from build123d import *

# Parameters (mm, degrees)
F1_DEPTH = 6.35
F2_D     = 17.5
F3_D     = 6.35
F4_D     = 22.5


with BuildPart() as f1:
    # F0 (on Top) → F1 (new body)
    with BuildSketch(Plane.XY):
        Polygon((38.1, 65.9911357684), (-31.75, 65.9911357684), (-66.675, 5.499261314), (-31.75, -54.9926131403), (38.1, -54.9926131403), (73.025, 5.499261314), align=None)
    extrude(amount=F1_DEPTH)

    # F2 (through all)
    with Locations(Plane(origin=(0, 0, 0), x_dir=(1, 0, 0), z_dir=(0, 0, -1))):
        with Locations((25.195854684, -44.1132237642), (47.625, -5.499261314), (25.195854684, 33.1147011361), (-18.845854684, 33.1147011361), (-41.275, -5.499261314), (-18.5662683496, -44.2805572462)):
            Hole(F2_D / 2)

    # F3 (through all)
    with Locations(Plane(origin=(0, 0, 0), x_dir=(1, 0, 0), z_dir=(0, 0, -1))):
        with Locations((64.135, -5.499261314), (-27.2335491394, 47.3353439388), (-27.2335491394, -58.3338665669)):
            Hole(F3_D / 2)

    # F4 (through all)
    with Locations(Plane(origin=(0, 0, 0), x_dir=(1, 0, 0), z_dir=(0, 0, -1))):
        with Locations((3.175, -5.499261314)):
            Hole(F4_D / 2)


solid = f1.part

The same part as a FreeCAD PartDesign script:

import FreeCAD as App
import Part
import Sketcher

V = App.Vector
Q = App.Units.Quantity


def add_polygon(sketch, points):
    """Adds a closed chain of lines whose ends are joined by coincident constraints."""
    first, n = sketch.GeometryCount, len(points)
    for a, b in zip(points, points[1:] + points[:1]):
        sketch.addGeometry(Part.LineSegment(App.Vector(*a, 0), App.Vector(*b, 0)), False)
    for i in range(n):
        sketch.addConstraint(Sketcher.Constraint("Coincident", first + i, 2, first + (i + 1) % n, 1))

doc = App.newDocument("Part")
body = doc.addObject("PartDesign::Body", "Body")

sketch1 = body.newObject("Sketcher::SketchObject", "Sketch")
sketch1.AttachmentSupport = (doc.getObject("XY_Plane"), [""])
sketch1.MapMode = "FlatFace"
add_polygon(sketch1, [(38, 66), (-32, 66), (-67, 5), (-32, -55), (38, -55), (73, 5)])
sketch1.addConstraint([
    Sketcher.Constraint("Horizontal", 0),
    Sketcher.Constraint("Horizontal", 3),
    Sketcher.Constraint("Parallel", 1, 4),
    Sketcher.Constraint("Parallel", 2, 5),
    Sketcher.Constraint("Horizontal", 1, 2, 4, 2),
    Sketcher.Constraint("Vertical", 0, 2, 2, 2),
    Sketcher.Constraint("Vertical", 3, 2, 5, 2),
    Sketcher.Constraint("Angle", 1, Q("-120 deg")),
    Sketcher.Constraint("DistanceX", 0, 2, 0, 1, 69.85),
    Sketcher.Constraint("DistanceX", -1, 1, 3, 2, 38.1),
    Sketcher.Constraint("DistanceX", 1, 2, 4, 2, 139.7),
    Sketcher.Constraint("DistanceY", -1, 1, 1, 2, 5.499261),
])
pad1 = body.newObject("PartDesign::Pad", "Pad")
pad1.Profile = sketch1
pad1.Length = 6.35

sketch2 = body.newObject("Sketcher::SketchObject", "Sketch001")
sketch2.AttachmentSupport = (doc.getObject("XY_Plane"), [""])
sketch2.MapMode = "FlatFace"
sketch2.addGeometry([
    Part.Circle(V(25, 44, 0), V(0, 0, 1), 9),
    Part.Circle(V(48, 5, 0), V(0, 0, 1), 9),
    Part.Circle(V(25, -33, 0), V(0, 0, 1), 9),
    Part.Circle(V(-19, -33, 0), V(0, 0, 1), 9),
    Part.Circle(V(-41, 5, 0), V(0, 0, 1), 9),
    Part.Circle(V(-19, 44, 0), V(0, 0, 1), 9),
], False)
sketch2.addConstraint([
    Sketcher.Constraint("Equal", 0, 1),
    Sketcher.Constraint("Equal", 1, 2),
    Sketcher.Constraint("Equal", 2, 3),
    Sketcher.Constraint("Equal", 3, 4),
    Sketcher.Constraint("Equal", 4, 5),
    Sketcher.Constraint("Horizontal", 2, 3, 3, 3),
    Sketcher.Constraint("Horizontal", 1, 3, 4, 3),
    Sketcher.Constraint("Vertical", 0, 3, 2, 3),
    Sketcher.Constraint("Diameter", 0, 17.5),
    Sketcher.Constraint("DistanceX", 4, 3, 1, 3, 88.9),
    Sketcher.Constraint("DistanceX", -1, 1, 1, 3, 47.625),
    Sketcher.Constraint("DistanceY", 2, 3, -1, 1, 33.114701),
    Sketcher.Constraint("DistanceY", -1, 1, 1, 3, 5.499261),
    Sketcher.Constraint("DistanceX", 5, 3, -1, 1, 18.566268),
    Sketcher.Constraint("DistanceX", 3, 3, 2, 3, 44.041709),
    Sketcher.Constraint("DistanceY", 3, 3, 5, 3, 77.395258),
    Sketcher.Constraint("DistanceX", -1, 1, 0, 3, 25.195855),
    Sketcher.Constraint("DistanceY", -1, 1, 0, 3, 44.113224),
])
doc.recompute()
hole = body.newObject("PartDesign::Hole", "Hole")
hole.Profile = sketch2
hole.ThreadType = "None"
hole.Diameter = 17.5
hole.DepthType = "ThroughAll"
hole.Reversed = True

sketch3 = body.newObject("Sketcher::SketchObject", "Sketch002")
sketch3.AttachmentSupport = (doc.getObject("XY_Plane"), [""])
sketch3.MapMode = "FlatFace"
sketch3.addGeometry([
    Part.Circle(V(64.1, 5.5, 0), V(0, 0, 1), 3.2),
    Part.Circle(V(-27.2, -47.3, 0), V(0, 0, 1), 3.2),
    Part.Circle(V(-27.2, 58.3, 0), V(0, 0, 1), 3.2),
], False)
sketch3.addConstraint([
    Sketcher.Constraint("Equal", 0, 1),
    Sketcher.Constraint("Equal", 1, 2),
    Sketcher.Constraint("Vertical", 1, 3, 2, 3),
    Sketcher.Constraint("Diameter", 0, 6.35),
    Sketcher.Constraint("DistanceX", -1, 1, 0, 3, 64.135),
    Sketcher.Constraint("DistanceY", -1, 1, 0, 3, 5.499261),
    Sketcher.Constraint("DistanceX", 1, 3, -1, 1, 27.233549),
    Sketcher.Constraint("DistanceY", 1, 3, 2, 3, 105.669211),
    Sketcher.Constraint("DistanceY", 1, 3, -1, 1, 47.335344),
])
doc.recompute()
hole2 = body.newObject("PartDesign::Hole", "Hole001")
hole2.Profile = sketch3
hole2.ThreadType = "None"
hole2.Diameter = 6.35
hole2.DepthType = "ThroughAll"
hole2.Reversed = True

sketch4 = body.newObject("Sketcher::SketchObject", "Sketch003")
sketch4.AttachmentSupport = (doc.getObject("XY_Plane"), [""])
sketch4.MapMode = "FlatFace"
sketch4.addGeometry(Part.Circle(V(3, 5, 0), V(0, 0, 1), 11), False)
sketch4.addConstraint([
    Sketcher.Constraint("Diameter", 0, 22.5),
    Sketcher.Constraint("DistanceX", -1, 1, 0, 3, 3.175),
    Sketcher.Constraint("DistanceY", -1, 1, 0, 3, 5.499261),
])
doc.recompute()
hole3 = body.newObject("PartDesign::Hole", "Hole002")
hole3.Profile = sketch4
hole3.ThreadType = "None"
hole3.Diameter = 22.5
hole3.DepthType = "ThroughAll"
hole3.Reversed = True

doc.recompute()
